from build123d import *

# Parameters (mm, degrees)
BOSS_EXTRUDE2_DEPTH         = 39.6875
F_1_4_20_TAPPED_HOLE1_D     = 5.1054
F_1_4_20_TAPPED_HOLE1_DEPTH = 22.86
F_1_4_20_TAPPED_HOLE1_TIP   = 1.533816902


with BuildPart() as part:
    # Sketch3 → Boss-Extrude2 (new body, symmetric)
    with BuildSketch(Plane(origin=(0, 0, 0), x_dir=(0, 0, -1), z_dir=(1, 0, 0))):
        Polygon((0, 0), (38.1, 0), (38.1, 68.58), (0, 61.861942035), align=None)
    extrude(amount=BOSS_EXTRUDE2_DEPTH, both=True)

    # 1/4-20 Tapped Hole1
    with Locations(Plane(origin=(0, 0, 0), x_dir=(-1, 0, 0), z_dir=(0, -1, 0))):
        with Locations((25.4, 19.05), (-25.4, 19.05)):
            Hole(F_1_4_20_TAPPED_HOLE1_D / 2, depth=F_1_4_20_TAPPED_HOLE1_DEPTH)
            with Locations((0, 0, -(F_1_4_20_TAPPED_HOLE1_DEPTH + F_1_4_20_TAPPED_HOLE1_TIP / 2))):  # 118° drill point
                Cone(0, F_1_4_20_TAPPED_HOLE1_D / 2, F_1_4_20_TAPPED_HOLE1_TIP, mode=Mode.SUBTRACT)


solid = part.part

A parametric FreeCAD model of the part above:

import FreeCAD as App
import Part
import Sketcher
Q = App.Units.Quantity

doc = App.newDocument("Part")
body = doc.addObject("PartDesign::Body", "Body")

sketch1 = body.newObject("Sketcher::SketchObject", "Sketch")
sketch1.AttachmentSupport = (doc.getObject("YZ_Plane"), [""])
sketch1.MapMode = "FlatFace"
sketch1.addGeometry([
    Part.LineSegment(App.Vector(0, 0, 0), App.Vector(0, -38.1, 0)),
    Part.LineSegment(App.Vector(0, -38.1, 0), App.Vector(68.58, -38.1, 0)),
    Part.LineSegment(App.Vector(68.58, -38.1, 0), App.Vector(61.861942, 0, 0)),
    Part.LineSegment(App.Vector(61.861942, 0, 0), App.Vector(0, 0, 0)),
], False)
sketch1.addConstraint([
    Sketcher.Constraint("Coincident", 0, 2, 1, 1),
    Sketcher.Constraint("Coincident", 1, 2, 2, 1),
    Sketcher.Constraint("Coincident", 2, 2, 3, 1),
    Sketcher.Constraint("Coincident", 3, 2, 0, 1),
    Sketcher.Constraint("Vertical", 0),
    Sketcher.Constraint("Horizontal", 1),
    Sketcher.Constraint("Horizontal", 3),
    Sketcher.Constraint("Coincident", 3, 2, -1, 1),
    Sketcher.Constraint("DistanceX", 1, 1, 1, 2, Q("2.7 in")),
    Sketcher.Constraint("DistanceY", 0, 2, 0, 1, Q("1.5 in")),
    Sketcher.Constraint("Angle", 2, Q("100 deg")),
])
pad1 = body.newObject("PartDesign::Pad", "Pad")
pad1.Profile = sketch1
pad1.Length = Q("3.125 in")
pad1.Midplane = True

sketch2 = body.newObject("Sketcher::SketchObject", "Sketch001")
sketch2.AttachmentSupport = (doc.getObject("XZ_Plane"), [""])
sketch2.MapMode = "FlatFace"
sketch2.addGeometry([
    Part.Circle(App.Vector(-25.4, -19.05, 0), App.Vector(0, 0, 1), 2.5527),
    Part.Circle(App.Vector(25.4, -19.05, 0), App.Vector(0, 0, 1), 2.5527),
], False)
sketch2.addConstraint([
    Sketcher.Constraint("Equal", 0, 1),
    Sketcher.Constraint("Symmetric", 0, 3, 1, 3, -2),
    Sketcher.Constraint("Diameter", 0, Q("0.201 in")),
    Sketcher.Constraint("DistanceX", 0, 3, -1, 1, Q("1 in")),
    Sketcher.Constraint("DistanceY", 0, 3, -1, 1, Q("0.75 in")),
])
doc.recompute()
hole = body.newObject("PartDesign::Hole", "Hole")
hole.Profile = sketch2
hole.ThreadType = "None"
hole.Diameter = Q("0.201 in")
hole.DepthType = "Dimension"
hole.Depth = Q("0.9 in")
hole.DrillPoint = "Angled"
hole.DrillPointAngle = 118

doc.recompute()
